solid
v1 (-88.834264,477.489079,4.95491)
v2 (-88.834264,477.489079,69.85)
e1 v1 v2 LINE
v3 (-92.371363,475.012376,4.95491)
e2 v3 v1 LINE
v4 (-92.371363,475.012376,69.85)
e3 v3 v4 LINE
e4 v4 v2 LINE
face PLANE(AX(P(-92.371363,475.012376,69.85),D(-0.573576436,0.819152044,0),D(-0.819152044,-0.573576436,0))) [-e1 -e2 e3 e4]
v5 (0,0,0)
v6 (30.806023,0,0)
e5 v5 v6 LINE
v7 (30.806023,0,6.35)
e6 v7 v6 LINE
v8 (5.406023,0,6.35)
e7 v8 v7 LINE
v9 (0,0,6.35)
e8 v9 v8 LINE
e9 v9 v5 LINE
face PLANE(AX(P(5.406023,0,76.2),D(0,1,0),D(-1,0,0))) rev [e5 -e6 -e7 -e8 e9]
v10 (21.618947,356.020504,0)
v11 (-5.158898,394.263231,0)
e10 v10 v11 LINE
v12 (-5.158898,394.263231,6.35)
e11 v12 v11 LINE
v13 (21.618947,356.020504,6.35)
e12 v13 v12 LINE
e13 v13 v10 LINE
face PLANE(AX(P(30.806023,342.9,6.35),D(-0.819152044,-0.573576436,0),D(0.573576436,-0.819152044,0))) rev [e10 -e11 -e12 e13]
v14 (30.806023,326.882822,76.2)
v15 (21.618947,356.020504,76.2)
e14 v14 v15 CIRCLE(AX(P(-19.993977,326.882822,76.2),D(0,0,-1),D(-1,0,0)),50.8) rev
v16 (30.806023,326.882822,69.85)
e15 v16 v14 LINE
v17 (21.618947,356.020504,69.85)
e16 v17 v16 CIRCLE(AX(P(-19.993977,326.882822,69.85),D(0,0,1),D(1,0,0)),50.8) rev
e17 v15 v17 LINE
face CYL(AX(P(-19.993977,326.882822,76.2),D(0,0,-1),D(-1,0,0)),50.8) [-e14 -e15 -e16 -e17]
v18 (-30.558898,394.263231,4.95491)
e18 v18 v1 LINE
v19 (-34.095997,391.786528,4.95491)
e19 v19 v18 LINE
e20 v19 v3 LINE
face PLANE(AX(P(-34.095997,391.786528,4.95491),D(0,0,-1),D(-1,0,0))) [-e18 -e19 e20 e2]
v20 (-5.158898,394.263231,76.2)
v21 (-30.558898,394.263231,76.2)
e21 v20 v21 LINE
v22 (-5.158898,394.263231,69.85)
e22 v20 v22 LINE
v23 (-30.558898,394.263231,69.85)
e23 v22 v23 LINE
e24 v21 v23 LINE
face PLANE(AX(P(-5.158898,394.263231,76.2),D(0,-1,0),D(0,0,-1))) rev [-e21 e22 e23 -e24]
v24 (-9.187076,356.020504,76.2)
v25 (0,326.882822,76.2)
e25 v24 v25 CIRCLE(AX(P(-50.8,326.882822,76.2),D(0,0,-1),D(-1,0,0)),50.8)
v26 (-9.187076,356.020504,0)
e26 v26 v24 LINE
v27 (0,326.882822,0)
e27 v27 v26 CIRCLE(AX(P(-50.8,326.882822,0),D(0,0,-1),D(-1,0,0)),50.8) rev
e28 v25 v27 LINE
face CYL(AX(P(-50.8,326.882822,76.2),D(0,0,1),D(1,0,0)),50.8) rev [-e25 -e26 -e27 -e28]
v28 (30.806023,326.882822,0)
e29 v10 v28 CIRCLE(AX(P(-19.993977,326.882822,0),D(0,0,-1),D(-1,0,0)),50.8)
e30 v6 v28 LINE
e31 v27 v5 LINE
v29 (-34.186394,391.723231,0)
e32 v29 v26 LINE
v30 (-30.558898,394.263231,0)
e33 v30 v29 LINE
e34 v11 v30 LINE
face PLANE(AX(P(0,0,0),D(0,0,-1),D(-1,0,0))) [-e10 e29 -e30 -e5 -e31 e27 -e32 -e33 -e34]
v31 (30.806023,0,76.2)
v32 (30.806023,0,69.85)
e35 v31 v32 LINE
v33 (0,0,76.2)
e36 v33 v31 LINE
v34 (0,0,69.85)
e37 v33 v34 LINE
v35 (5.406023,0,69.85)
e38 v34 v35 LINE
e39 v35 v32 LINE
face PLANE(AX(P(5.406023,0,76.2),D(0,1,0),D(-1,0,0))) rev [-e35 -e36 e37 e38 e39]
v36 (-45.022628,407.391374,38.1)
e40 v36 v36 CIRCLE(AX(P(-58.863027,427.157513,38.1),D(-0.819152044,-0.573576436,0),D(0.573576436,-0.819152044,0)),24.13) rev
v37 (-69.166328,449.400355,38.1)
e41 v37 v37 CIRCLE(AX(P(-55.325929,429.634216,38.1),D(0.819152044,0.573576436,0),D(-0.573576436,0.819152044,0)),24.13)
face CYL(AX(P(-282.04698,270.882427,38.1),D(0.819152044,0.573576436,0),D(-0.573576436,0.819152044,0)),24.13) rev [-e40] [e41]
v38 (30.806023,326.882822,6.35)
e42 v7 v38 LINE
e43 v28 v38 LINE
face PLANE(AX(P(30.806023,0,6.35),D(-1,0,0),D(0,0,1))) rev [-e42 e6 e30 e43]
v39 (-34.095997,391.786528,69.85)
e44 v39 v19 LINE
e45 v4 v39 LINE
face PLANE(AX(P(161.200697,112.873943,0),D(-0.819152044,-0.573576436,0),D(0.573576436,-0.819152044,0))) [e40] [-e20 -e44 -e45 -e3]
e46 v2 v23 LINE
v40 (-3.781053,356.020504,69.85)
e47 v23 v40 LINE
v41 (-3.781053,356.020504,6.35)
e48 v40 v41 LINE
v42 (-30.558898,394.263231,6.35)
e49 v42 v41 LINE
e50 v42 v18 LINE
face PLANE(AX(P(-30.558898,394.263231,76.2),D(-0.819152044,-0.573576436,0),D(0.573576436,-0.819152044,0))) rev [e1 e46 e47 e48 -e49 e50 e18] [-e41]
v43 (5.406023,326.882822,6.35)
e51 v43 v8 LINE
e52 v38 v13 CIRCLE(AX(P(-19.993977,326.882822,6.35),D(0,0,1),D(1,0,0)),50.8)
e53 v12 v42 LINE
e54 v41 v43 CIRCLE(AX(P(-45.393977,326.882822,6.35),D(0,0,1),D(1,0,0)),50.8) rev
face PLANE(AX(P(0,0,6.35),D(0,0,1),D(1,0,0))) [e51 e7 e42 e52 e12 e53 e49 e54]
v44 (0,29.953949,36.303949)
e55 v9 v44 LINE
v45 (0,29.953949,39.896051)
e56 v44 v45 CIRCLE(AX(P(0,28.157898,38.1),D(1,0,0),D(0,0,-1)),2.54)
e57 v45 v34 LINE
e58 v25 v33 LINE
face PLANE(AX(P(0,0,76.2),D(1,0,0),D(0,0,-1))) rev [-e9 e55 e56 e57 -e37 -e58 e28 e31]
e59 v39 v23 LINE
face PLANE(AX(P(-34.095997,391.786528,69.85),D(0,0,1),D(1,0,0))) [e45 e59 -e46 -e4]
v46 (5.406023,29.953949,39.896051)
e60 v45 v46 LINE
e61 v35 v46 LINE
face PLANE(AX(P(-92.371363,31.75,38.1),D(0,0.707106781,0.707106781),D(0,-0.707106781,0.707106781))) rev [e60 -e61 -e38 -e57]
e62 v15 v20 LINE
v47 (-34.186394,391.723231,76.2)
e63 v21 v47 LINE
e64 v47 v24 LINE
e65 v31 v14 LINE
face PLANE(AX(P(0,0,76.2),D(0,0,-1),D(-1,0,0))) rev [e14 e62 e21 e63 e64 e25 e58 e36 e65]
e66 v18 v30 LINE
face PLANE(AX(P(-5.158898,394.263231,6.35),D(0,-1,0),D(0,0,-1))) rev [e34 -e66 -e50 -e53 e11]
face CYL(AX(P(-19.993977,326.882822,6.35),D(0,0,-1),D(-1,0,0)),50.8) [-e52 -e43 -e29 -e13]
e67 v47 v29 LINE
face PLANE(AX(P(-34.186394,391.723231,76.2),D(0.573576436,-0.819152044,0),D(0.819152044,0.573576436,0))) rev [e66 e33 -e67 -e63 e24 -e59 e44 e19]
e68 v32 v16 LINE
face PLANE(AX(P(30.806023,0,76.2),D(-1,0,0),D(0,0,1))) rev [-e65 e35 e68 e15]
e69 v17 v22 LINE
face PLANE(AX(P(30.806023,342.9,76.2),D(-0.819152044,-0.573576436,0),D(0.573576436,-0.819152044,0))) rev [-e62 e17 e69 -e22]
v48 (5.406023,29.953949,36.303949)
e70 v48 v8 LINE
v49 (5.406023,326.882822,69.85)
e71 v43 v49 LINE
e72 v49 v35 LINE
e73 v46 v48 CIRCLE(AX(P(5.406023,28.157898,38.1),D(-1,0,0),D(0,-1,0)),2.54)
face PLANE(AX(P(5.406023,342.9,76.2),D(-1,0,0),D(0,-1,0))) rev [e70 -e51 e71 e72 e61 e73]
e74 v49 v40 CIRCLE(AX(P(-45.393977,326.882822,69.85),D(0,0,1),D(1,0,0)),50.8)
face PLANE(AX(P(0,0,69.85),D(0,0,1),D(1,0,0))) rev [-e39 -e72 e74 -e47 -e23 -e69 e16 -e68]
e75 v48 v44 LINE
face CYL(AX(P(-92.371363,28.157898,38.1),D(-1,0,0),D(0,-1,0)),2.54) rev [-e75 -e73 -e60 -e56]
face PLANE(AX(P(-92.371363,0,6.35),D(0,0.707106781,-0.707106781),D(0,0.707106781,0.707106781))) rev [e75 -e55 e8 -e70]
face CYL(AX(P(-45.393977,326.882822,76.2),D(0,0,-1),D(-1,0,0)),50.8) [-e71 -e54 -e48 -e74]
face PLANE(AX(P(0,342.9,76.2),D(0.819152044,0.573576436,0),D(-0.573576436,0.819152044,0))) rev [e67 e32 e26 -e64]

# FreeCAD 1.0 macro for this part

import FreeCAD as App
import Part
import Sketcher
from FreeCAD import Vector
Q = App.Units.Quantity


def edges_at(feature, points):
    """Names of the edges that pass closest to the given points."""
    edges = feature.Shape.Edges
    near = lambda p: min(range(len(edges)), key=lambda i: edges[i].distToShape(Part.Vertex(*p))[0])
    return sorted({f"Edge{near(p) + 1}" for p in points})


def add_polygon(sketch, points):
    """Adds a closed chain of lines whose ends are joined by coincident constraints."""
    first, n = sketch.GeometryCount, len(points)
    for a, b in zip(points, points[1:] + points[:1]):
        sketch.addGeometry(Part.LineSegment(App.Vector(*a, 0), App.Vector(*b, 0)), False)
    for i in range(n):
        sketch.addConstraint(Sketcher.Constraint("Coincident", first + i, 2, first + (i + 1) % n, 1))

doc = App.newDocument("Part")
params = doc.addObject("Spreadsheet::Sheet", "Params")
for row, (alias, value) in enumerate([
    ("sketch1_length", "2 in"),
    ("sketch1_height", "13.5 in"),
    ("pad1_length", "3 in"),
    ("sketch2_width", "1 in"),
    ("sketch2_height", "13.5 in"),
    ("pad2_length", "0.25 in"),
    ("linearpattern_pitch", "2.75 in"),
    ("fillet_radius", "2 in"),
    ("sketch3_height", "4 in"),
    ("pad3_length", "0.17 in"),
    ("sketch4_diameter", "1.9 in"),
    ("sketch5_height", "2.5 in"),
    ("fillet2_radius", "0.1 in"),
], start=1):
    params.set(f"A{row}", alias)
    params.set(f"B{row}", "=" + value)
    params.setAlias(f"B{row}", alias)

body = doc.addObject("PartDesign::Body", "Body")

# Sketch on XY plane
sketch1 = body.newObject("Sketcher::SketchObject", "Sketch")
sketch1.AttachmentSupport = (doc.getObject("XY_Plane"), [""])
sketch1.MapMode = "FlatFace"
add_polygon(sketch1, [(0, 342.9), (0, 0), (5.4, 0), (5.4, 342.9), (-23.7, 384.5), (-30.6, 394.3), (-34.2, 391.7)])  # lines 0-6
sketch1.addConstraint([
    Sketcher.Constraint("Vertical", 0),
    Sketcher.Constraint("Horizontal", 1),
    Sketcher.Constraint("Vertical", 2),
    Sketcher.Constraint("Coincident", 0, 2, -1, 1),
    Sketcher.Constraint("Parallel", 3, 4),
    Sketcher.Constraint("Perpendicular", 4, 5),
    Sketcher.Constraint("Perpendicular", 5, 6),
    Sketcher.Constraint("Horizontal", 2, 2, 6, 2),
    Sketcher.Constraint("Distance", 3, Q("2 in")),
    Sketcher.Constraint("DistanceY", 0, 2, 0, 1, Q("13.5 in")),
    Sketcher.Constraint("Angle", 3, Q("125 deg")),
    Sketcher.Constraint("DistanceY", 5, 2, 4, 2, Q("0.1 in")),
    Sketcher.Constraint("DistanceX", 4, 2, -1, 1, Q("30.558898 mm")),
])
sketch1.setExpression("Constraints[15]", "Params.sketch1_length")
sketch1.setExpression("Constraints[16]", "Params.sketch1_height")
pad1 = body.newObject("PartDesign::Pad", "Pad")
pad1.Profile = sketch1
pad1.setExpression("Length", "Params.pad1_length")

# Sketch on XY plane
sketch2 = body.newObject("Sketcher::SketchObject", "Sketch001")
sketch2.AttachmentSupport = (doc.getObject("XY_Plane"), [""])
sketch2.MapMode = "FlatFace"
add_polygon(sketch2, [(5, 0), (31, 0), (31, 343), (-5, 394), (-31, 394), (5, 343)])  # lines 0-5
sketch2.addConstraint([
    Sketcher.Constraint("Horizontal", 0),
    Sketcher.Constraint("Vertical", 1),
    Sketcher.Constraint("Horizontal", 3),
    Sketcher.Constraint("Vertical", 5),
    Sketcher.Constraint("PointOnObject", 0, 2, -1),
    Sketcher.Constraint("Parallel", 2, 4),
    Sketcher.Constraint("Horizontal", 1, 2, 4, 2),
    Sketcher.Constraint("DistanceX", 0, 1, 0, 2, Q("1 in")),
    Sketcher.Constraint("DistanceY", 1, 1, 1, 2, Q("13.5 in")),
    Sketcher.Constraint("Angle", 2, Q("125 deg")),
    Sketcher.Constraint("DistanceX", 2, 2, -1, 1, Q("5.158898 mm")),
    Sketcher.Constraint("DistanceY", -1, 1, 2, 2, Q("394.263231 mm")),
])
sketch2.setExpression("Constraints[13]", "Params.sketch2_width")
sketch2.setExpression("Constraints[14]", "Params.sketch2_height")
pad2 = body.newObject("PartDesign::Pad", "Pad001")
pad2.Profile = sketch2
pad2.setExpression("Length", "Params.pad2_length")
doc.recompute()

linearpattern = body.newObject("PartDesign::LinearPattern", "LinearPattern")
linearpattern.Originals = [pad2]
linearpattern.Direction = (doc.getObject("Z_Axis"), [""])
linearpattern.Mode = "offset"
linearpattern.setExpression("Offset", "Params.linearpattern_pitch")
linearpattern.Occurrences = 2
body.Tip = linearpattern
doc.recompute()

fillet = body.newObject("PartDesign::Fillet", "Fillet")
fillet.Base = (linearpattern, edges_at(linearpattern, [
    (0, 342.9, 38.1),
    (30.806, 342.9, 3.175),
    (5.406, 342.9, 38.1),
    (30.806, 342.9, 73.025),
]))
fillet.setExpression("Radius", "Params.fillet_radius")

# Sketch on an angled plane
sketch3 = body.newObject("Sketcher::SketchObject", "Sketch002")
sketch3.Placement = App.Placement(Vector(164.737796, 115.350646, 0), App.Rotation(Vector(0, 0, -1), Vector(-0.573576436, 0.819152044, 0), Vector(0.819152044, 0.573576436, 0), "ZXY"))
add_polygon(sketch3, [(-70, 442), (-70, 340), (-5, 340), (-5, 442)])  # lines 0-3
sketch3.addConstraint([
    Sketcher.Constraint("Vertical", 0),
    Sketcher.Constraint("Horizontal", 1),
    Sketcher.Constraint("Vertical", 2),
    Sketcher.Constraint("Horizontal", 3),
    Sketcher.Constraint("DistanceY", 0, 2, 0, 1, Q("4 in")),
    Sketcher.Constraint("DistanceX", 0, 2, -1, 1, Q("2.75 in")),
    Sketcher.Constraint("DistanceX", 1, 1, 1, 2, Q("64.89509 mm")),
    Sketcher.Constraint("DistanceY", -1, 1, 0, 2, Q("340.489395 mm")),
])
sketch3.setExpression("Constraints[8]", "Params.sketch3_height")
pad3 = body.newObject("PartDesign::Pad", "Pad002")
pad3.Profile = sketch3
pad3.setExpression("Length", "Params.pad3_length")
pad3.Reversed = True

# Sketch on an angled plane
sketch4 = body.newObject("Sketcher::SketchObject", "Sketch003")
sketch4.Placement = App.Placement(Vector(164.737796, 115.350646, 0), App.Rotation(Vector(0, 0, -1), Vector(-0.573576436, 0.819152044, 0), Vector(0.819152044, 0.573576436, 0), "ZXY"))
sketch4.addGeometry(Part.Circle(Vector(-38, 384, 0), Vector(0, 0, 1), 24), False)
sketch4.addConstraint([
    Sketcher.Constraint("Diameter", 0, Q("1.9 in")),
    Sketcher.Constraint("DistanceX", 0, 3, -1, 1, Q("1.5 in")),
    Sketcher.Constraint("DistanceY", -1, 1, 0, 3, Q("383.669395 mm")),
])
sketch4.setExpression("Constraints[0]", "Params.sketch4_diameter")
pocket1 = body.newObject("PartDesign::Pocket", "Pocket")
pocket1.Profile = sketch4
pocket1.Type = "UpToFirst"

# Sketch on YZ plane
sketch5 = body.newObject("Sketcher::SketchObject", "Sketch004")
sketch5.AttachmentSupport = (doc.getObject("YZ_Plane"), [""])
sketch5.MapMode = "FlatFace"
sketch5.AttachmentOffset = App.Placement(Vector(0, 0, 5.406023), App.Rotation())
add_polygon(sketch5, [(32, 38), (0, 70), (0, 6)])  # lines 0-2
sketch5.addConstraint([
    Sketcher.Constraint("Vertical", 1),
    Sketcher.Constraint("PointOnObject", 0, 2, -2),
    Sketcher.Constraint("Perpendicular", 0, 2),
    Sketcher.Constraint("Equal", 0, 2),
    Sketcher.Constraint("DistanceY", 1, 2, 1, 1, Q("2.5 in")),
    Sketcher.Constraint("DistanceY", -1, 1, 2, 2, Q("1.5 in")),
])
sketch5.setExpression("Constraints[7]", "Params.sketch5_height")
pocket2 = body.newObject("PartDesign::Pocket", "Pocket001")
pocket2.Profile = sketch5
pocket2.Type = "ThroughAll"
pocket2.Midplane = True
doc.recompute()

fillet2 = body.newObject("PartDesign::Fillet", "Fillet001")
fillet2.Base = (pocket2, edges_at(pocket2, [(2.703, 31.75, 38.1)]))
fillet2.setExpression("Radius", "Params.fillet2_radius")

doc.recompute()
